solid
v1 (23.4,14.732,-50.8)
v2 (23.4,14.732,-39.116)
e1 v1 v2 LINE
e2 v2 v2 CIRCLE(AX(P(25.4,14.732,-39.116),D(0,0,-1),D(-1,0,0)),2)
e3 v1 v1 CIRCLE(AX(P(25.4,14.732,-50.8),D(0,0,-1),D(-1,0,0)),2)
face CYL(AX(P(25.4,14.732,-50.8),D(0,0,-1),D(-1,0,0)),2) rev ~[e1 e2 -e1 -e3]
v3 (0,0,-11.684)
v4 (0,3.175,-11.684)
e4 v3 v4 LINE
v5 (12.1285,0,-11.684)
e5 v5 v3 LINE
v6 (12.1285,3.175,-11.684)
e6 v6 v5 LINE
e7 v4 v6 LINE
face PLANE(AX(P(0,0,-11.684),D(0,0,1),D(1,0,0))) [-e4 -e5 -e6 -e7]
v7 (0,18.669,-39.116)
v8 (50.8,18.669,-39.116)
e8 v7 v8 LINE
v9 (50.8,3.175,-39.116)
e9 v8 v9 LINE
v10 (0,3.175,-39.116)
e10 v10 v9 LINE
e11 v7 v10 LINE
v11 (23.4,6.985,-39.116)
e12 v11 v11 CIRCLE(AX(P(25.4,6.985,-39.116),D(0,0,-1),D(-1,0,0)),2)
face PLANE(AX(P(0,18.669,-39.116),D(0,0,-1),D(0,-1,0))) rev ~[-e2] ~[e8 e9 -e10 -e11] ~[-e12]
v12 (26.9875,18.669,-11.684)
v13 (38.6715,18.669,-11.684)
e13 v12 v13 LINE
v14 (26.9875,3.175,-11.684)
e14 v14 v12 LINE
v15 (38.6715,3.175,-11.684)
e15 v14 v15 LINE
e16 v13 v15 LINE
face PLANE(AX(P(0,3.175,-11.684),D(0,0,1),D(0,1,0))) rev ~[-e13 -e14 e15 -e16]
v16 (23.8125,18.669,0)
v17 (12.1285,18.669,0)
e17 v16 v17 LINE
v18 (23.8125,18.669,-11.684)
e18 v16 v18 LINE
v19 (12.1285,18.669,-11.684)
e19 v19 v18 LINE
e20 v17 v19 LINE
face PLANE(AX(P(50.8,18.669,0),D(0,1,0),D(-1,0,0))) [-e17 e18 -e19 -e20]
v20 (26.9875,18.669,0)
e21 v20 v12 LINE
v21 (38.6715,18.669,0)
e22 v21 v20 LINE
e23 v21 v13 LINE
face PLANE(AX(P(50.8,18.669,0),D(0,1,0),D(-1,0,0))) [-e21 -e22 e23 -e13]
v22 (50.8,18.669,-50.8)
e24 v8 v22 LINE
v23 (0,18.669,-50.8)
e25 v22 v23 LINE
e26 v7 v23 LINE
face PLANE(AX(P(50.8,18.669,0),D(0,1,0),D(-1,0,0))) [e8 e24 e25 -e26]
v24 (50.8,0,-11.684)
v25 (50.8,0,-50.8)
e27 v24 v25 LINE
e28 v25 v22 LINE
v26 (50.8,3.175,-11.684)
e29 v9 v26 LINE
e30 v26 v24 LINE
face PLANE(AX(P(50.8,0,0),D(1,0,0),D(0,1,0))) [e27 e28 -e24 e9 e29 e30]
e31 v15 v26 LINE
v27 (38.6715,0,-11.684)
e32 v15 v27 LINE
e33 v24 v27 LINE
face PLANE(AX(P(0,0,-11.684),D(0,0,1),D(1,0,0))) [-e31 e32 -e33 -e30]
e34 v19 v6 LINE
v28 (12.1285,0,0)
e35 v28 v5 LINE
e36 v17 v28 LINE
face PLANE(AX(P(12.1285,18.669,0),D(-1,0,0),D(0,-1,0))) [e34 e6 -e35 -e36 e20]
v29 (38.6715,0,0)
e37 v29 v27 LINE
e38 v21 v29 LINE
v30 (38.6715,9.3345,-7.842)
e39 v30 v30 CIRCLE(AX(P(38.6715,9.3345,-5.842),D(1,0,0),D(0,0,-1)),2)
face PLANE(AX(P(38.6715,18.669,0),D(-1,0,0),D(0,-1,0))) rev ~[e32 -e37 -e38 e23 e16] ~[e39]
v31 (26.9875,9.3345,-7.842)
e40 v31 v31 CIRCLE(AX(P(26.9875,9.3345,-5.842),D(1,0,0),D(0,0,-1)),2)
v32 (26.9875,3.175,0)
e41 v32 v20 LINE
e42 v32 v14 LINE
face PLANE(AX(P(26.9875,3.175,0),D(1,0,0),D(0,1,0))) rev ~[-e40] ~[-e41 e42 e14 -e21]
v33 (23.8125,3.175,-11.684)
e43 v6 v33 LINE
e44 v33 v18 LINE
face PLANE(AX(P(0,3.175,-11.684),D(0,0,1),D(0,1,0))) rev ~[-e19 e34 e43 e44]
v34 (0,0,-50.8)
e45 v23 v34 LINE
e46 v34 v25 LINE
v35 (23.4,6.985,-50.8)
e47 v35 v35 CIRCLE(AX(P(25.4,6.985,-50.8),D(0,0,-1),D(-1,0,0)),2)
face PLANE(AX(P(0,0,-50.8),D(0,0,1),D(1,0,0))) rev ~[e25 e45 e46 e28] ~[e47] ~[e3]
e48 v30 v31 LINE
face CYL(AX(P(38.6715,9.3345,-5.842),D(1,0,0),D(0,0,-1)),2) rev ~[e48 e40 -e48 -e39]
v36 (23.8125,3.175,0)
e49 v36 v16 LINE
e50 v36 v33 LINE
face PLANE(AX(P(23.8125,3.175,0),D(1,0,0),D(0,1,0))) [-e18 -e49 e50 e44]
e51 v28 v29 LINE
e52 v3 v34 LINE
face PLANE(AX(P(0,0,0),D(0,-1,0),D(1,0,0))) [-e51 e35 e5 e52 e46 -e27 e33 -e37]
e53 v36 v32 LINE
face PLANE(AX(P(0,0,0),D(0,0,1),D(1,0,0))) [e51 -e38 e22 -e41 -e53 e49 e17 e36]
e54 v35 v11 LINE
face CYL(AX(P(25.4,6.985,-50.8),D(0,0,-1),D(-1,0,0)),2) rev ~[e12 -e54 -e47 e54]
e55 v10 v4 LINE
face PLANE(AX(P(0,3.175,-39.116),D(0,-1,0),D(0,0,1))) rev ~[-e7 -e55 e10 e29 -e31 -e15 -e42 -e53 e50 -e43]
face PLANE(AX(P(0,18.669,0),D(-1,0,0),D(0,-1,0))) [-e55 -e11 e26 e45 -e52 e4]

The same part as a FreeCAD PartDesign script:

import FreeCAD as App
import Part
import Sketcher
Q = App.Units.Quantity


def add_polygon(sketch, points):
    """Adds a closed chain of lines whose ends are joined by coincident constraints."""
    first, n = sketch.GeometryCount, len(points)
    for a, b in zip(points, points[1:] + points[:1]):
        sketch.addGeometry(Part.LineSegment(App.Vector(*a, 0), App.Vector(*b, 0)), False)
    for i in range(n):
        sketch.addConstraint(Sketcher.Constraint("Coincident", first + i, 2, first + (i + 1) % n, 1))

doc = App.newDocument("Part")
params = doc.addObject("Spreadsheet::Sheet", "Params")
for row, (alias, value) in enumerate([
    ("sketch1_width", "2 in"),
    ("sketch1_height", "0.735 in"),
    ("pad1_length", "2 in"),
    ("sketch2_width", "0.61 in"),
    ("sketch2_height", "1.08 in"),
    ("pocket1_length", "2 in"),
    ("sketch3_height", "0.735 in"),
    ("pocket2_length", "0.46 in"),
    ("sketch4_width", "0.125 in"),
    ("sketch4_height", "0.61 in"),
    ("pocket3_length", "0.46 in"),
    ("pocket4_length", "0.46 in"),
    ("pocket5_length", "0.46 in"),
], start=1):
    params.set(f"A{row}", alias)
    params.set(f"B{row}", "=" + value)
    params.setAlias(f"B{row}", alias)

body = doc.addObject("PartDesign::Body", "Body")

# Sketch on XY plane
sketch1 = body.newObject("Sketcher::SketchObject", "Sketch")
sketch1.AttachmentSupport = (doc.getObject("XY_Plane"), [""])
sketch1.MapMode = "FlatFace"
add_polygon(sketch1, [(0, 19), (0, 0), (51, 0), (51, 19)])  # lines 0-3
sketch1.addConstraint(Sketcher.Constraint("Vertical", 0))
sketch1.addConstraint(Sketcher.Constraint("Horizontal", 1))
sketch1.addConstraint(Sketcher.Constraint("Vertical", 2))
sketch1.addConstraint(Sketcher.Constraint("Horizontal", 3))
sketch1.addConstraint(Sketcher.Constraint("Coincident", 0, 2, -1, 1))
sketch1.addConstraint(Sketcher.Constraint("DistanceX", 1, 1, 1, 2, Q("2 in")))
sketch1.addConstraint(Sketcher.Constraint("DistanceY", 0, 2, 0, 1, Q("0.735 in")))
sketch1.setExpression("Constraints[9]", "Params.sketch1_width")
sketch1.setExpression("Constraints[10]", "Params.sketch1_height")
pad1 = body.newObject("PartDesign::Pad", "Pad")
pad1.Profile = sketch1
pad1.setExpression("Length", "Params.pad1_length")
pad1.Reversed = True

# Sketch on YZ plane
sketch2 = body.newObject("Sketcher::SketchObject", "Sketch001")
sketch2.AttachmentSupport = (doc.getObject("YZ_Plane"), [""])
sketch2.MapMode = "FlatFace"
add_polygon(sketch2, [(3, -39), (3, -12), (19, -12), (19, -39)])  # lines 0-3
sketch2.addConstraint(Sketcher.Constraint("Vertical", 0))
sketch2.addConstraint(Sketcher.Constraint("Horizontal", 1))
sketch2.addConstraint(Sketcher.Constraint("Vertical", 2))
sketch2.addConstraint(Sketcher.Constraint("Horizontal", 3))
sketch2.addConstraint(Sketcher.Constraint("DistanceY", 0, 2, -1, 1, Q("0.46 in")))
sketch2.addConstraint(Sketcher.Constraint("DistanceX", -1, 1, 0, 2, Q("0.125 in")))
sketch2.addConstraint(Sketcher.Constraint("DistanceX", 1, 1, 1, 2, Q("0.61 in")))
sketch2.addConstraint(Sketcher.Constraint("DistanceY", 0, 1, 0, 2, Q("1.08 in")))
sketch2.setExpression("Constraints[10]", "Params.sketch2_width")
sketch2.setExpression("Constraints[11]", "Params.sketch2_height")
pocket1 = body.newObject("PartDesign::Pocket", "Pocket")
pocket1.Profile = sketch2
pocket1.setExpression("Length", "Params.pocket1_length")
pocket1.Reversed = True

# Sketch on XY plane
sketch3 = body.newObject("Sketcher::SketchObject", "Sketch002")
sketch3.AttachmentSupport = (doc.getObject("XY_Plane"), [""])
sketch3.MapMode = "FlatFace"
add_polygon(sketch3, [(39, 0), (51, 0), (51, 19), (39, 19)])  # lines 0-3
add_polygon(sketch3, [(0, 0), (12, 0), (12, 19), (0, 19)])  # lines 4-7
sketch3.addConstraint(Sketcher.Constraint("Horizontal", 0))
sketch3.addConstraint(Sketcher.Constraint("Vertical", 1))
sketch3.addConstraint(Sketcher.Constraint("Horizontal", 2))
sketch3.addConstraint(Sketcher.Constraint("Vertical", 3))
sketch3.addConstraint(Sketcher.Constraint("Horizontal", 4))
sketch3.addConstraint(Sketcher.Constraint("Vertical", 5))
sketch3.addConstraint(Sketcher.Constraint("Horizontal", 6))
sketch3.addConstraint(Sketcher.Constraint("Vertical", 7))
sketch3.addConstraint(Sketcher.Constraint("Coincident", 7, 2, -1, 1))
sketch3.addConstraint(Sketcher.Constraint("PointOnObject", 0, 2, -1))
sketch3.addConstraint(Sketcher.Constraint("Horizontal", 2, 2, 5, 2))
sketch3.addConstraint(Sketcher.Constraint("Equal", 2, 4))
sketch3.addConstraint(Sketcher.Constraint("DistanceX", -1, 1, 0, 2, Q("2 in")))
sketch3.addConstraint(Sketcher.Constraint("DistanceY", 1, 1, 1, 2, Q("0.735 in")))
sketch3.addConstraint(Sketcher.Constraint("DistanceX", 0, 1, 0, 2, Q("0.4775 in")))
sketch3.setExpression("Constraints[21]", "Params.sketch3_height")
pocket2 = body.newObject("PartDesign::Pocket", "Pocket001")
pocket2.Profile = sketch3
pocket2.setExpression("Length", "Params.pocket2_length")

# Sketch on XY plane
sketch4 = body.newObject("Sketcher::SketchObject", "Sketch003")
sketch4.AttachmentSupport = (doc.getObject("XY_Plane"), [""])
sketch4.MapMode = "FlatFace"
add_polygon(sketch4, [(23.8, 3.2), (27, 3.2), (27, 18.7), (23.8, 18.7)])  # lines 0-3
sketch4.addConstraint(Sketcher.Constraint("Horizontal", 0))
sketch4.addConstraint(Sketcher.Constraint("Vertical", 1))
sketch4.addConstraint(Sketcher.Constraint("Horizontal", 2))
sketch4.addConstraint(Sketcher.Constraint("Vertical", 3))
sketch4.addConstraint(Sketcher.Constraint("DistanceX", 0, 1, 0, 2, Q("0.125 in")))
sketch4.addConstraint(Sketcher.Constraint("DistanceY", -1, 1, 0, 2, Q("0.125 in")))
sketch4.addConstraint(Sketcher.Constraint("DistanceY", 1, 1, 1, 2, Q("0.61 in")))
sketch4.addConstraint(Sketcher.Constraint("DistanceX", -1, 1, 0, 2, Q("1.0625 in")))
sketch4.setExpression("Constraints[8]", "Params.sketch4_width")
sketch4.setExpression("Constraints[10]", "Params.sketch4_height")
pocket3 = body.newObject("PartDesign::Pocket", "Pocket002")
pocket3.Profile = sketch4
pocket3.setExpression("Length", "Params.pocket3_length")

# Sketch on YZ plane
sketch5 = body.newObject("Sketcher::SketchObject", "Sketch004")
sketch5.AttachmentSupport = (doc.getObject("YZ_Plane"), [""])
sketch5.MapMode = "FlatFace"
sketch5.AttachmentOffset = App.Placement(App.Vector(0, 0, 1.5225 * 25.4), App.Rotation())
sketch5.addGeometry(Part.Circle(App.Vector(9.3, -5.8, 0), App.Vector(0, 0, 1), 2), False)
sketch5.addConstraint(Sketcher.Constraint("Diameter", 0, 4.0))
sketch5.addConstraint(Sketcher.Constraint("DistanceY", 0, 3, -1, 1, Q("0.23 in")))
sketch5.addConstraint(Sketcher.Constraint("DistanceX", -1, 1, 0, 3, Q("0.3675 in")))
pocket4 = body.newObject("PartDesign::Pocket", "Pocket003")
pocket4.Profile = sketch5
pocket4.setExpression("Length", "Params.pocket4_length")

# Sketch on XY plane
sketch6 = body.newObject("Sketcher::SketchObject", "Sketch005")
sketch6.AttachmentSupport = (doc.getObject("XY_Plane"), [""])
sketch6.MapMode = "FlatFace"
sketch6.AttachmentOffset = App.Placement(App.Vector(0, 0, -2 * 25.4), App.Rotation())
sketch6.addGeometry(Part.Circle(App.Vector(25.4, 7, 0), App.Vector(0, 0, 1), 2), False)
sketch6.addGeometry(Part.Circle(App.Vector(25.4, 14.7, 0), App.Vector(0, 0, 1), 2), False)
sketch6.addConstraint(Sketcher.Constraint("Equal", 0, 1))
sketch6.addConstraint(Sketcher.Constraint("Vertical", 0, 3, 1, 3))
sketch6.addConstraint(Sketcher.Constraint("Diameter", 0, 4.0))
sketch6.addConstraint(Sketcher.Constraint("DistanceX", -1, 1, 0, 3, Q("1 in")))
sketch6.addConstraint(Sketcher.Constraint("DistanceY", -1, 1, 1, 3, Q("0.58 in")))
sketch6.addConstraint(Sketcher.Constraint("DistanceY", -1, 1, 0, 3, Q("0.275 in")))
pocket5 = body.newObject("PartDesign::Pocket", "Pocket004")
pocket5.Profile = sketch6
pocket5.setExpression("Length", "Params.pocket5_length")
pocket5.Reversed = True

doc.recompute()
